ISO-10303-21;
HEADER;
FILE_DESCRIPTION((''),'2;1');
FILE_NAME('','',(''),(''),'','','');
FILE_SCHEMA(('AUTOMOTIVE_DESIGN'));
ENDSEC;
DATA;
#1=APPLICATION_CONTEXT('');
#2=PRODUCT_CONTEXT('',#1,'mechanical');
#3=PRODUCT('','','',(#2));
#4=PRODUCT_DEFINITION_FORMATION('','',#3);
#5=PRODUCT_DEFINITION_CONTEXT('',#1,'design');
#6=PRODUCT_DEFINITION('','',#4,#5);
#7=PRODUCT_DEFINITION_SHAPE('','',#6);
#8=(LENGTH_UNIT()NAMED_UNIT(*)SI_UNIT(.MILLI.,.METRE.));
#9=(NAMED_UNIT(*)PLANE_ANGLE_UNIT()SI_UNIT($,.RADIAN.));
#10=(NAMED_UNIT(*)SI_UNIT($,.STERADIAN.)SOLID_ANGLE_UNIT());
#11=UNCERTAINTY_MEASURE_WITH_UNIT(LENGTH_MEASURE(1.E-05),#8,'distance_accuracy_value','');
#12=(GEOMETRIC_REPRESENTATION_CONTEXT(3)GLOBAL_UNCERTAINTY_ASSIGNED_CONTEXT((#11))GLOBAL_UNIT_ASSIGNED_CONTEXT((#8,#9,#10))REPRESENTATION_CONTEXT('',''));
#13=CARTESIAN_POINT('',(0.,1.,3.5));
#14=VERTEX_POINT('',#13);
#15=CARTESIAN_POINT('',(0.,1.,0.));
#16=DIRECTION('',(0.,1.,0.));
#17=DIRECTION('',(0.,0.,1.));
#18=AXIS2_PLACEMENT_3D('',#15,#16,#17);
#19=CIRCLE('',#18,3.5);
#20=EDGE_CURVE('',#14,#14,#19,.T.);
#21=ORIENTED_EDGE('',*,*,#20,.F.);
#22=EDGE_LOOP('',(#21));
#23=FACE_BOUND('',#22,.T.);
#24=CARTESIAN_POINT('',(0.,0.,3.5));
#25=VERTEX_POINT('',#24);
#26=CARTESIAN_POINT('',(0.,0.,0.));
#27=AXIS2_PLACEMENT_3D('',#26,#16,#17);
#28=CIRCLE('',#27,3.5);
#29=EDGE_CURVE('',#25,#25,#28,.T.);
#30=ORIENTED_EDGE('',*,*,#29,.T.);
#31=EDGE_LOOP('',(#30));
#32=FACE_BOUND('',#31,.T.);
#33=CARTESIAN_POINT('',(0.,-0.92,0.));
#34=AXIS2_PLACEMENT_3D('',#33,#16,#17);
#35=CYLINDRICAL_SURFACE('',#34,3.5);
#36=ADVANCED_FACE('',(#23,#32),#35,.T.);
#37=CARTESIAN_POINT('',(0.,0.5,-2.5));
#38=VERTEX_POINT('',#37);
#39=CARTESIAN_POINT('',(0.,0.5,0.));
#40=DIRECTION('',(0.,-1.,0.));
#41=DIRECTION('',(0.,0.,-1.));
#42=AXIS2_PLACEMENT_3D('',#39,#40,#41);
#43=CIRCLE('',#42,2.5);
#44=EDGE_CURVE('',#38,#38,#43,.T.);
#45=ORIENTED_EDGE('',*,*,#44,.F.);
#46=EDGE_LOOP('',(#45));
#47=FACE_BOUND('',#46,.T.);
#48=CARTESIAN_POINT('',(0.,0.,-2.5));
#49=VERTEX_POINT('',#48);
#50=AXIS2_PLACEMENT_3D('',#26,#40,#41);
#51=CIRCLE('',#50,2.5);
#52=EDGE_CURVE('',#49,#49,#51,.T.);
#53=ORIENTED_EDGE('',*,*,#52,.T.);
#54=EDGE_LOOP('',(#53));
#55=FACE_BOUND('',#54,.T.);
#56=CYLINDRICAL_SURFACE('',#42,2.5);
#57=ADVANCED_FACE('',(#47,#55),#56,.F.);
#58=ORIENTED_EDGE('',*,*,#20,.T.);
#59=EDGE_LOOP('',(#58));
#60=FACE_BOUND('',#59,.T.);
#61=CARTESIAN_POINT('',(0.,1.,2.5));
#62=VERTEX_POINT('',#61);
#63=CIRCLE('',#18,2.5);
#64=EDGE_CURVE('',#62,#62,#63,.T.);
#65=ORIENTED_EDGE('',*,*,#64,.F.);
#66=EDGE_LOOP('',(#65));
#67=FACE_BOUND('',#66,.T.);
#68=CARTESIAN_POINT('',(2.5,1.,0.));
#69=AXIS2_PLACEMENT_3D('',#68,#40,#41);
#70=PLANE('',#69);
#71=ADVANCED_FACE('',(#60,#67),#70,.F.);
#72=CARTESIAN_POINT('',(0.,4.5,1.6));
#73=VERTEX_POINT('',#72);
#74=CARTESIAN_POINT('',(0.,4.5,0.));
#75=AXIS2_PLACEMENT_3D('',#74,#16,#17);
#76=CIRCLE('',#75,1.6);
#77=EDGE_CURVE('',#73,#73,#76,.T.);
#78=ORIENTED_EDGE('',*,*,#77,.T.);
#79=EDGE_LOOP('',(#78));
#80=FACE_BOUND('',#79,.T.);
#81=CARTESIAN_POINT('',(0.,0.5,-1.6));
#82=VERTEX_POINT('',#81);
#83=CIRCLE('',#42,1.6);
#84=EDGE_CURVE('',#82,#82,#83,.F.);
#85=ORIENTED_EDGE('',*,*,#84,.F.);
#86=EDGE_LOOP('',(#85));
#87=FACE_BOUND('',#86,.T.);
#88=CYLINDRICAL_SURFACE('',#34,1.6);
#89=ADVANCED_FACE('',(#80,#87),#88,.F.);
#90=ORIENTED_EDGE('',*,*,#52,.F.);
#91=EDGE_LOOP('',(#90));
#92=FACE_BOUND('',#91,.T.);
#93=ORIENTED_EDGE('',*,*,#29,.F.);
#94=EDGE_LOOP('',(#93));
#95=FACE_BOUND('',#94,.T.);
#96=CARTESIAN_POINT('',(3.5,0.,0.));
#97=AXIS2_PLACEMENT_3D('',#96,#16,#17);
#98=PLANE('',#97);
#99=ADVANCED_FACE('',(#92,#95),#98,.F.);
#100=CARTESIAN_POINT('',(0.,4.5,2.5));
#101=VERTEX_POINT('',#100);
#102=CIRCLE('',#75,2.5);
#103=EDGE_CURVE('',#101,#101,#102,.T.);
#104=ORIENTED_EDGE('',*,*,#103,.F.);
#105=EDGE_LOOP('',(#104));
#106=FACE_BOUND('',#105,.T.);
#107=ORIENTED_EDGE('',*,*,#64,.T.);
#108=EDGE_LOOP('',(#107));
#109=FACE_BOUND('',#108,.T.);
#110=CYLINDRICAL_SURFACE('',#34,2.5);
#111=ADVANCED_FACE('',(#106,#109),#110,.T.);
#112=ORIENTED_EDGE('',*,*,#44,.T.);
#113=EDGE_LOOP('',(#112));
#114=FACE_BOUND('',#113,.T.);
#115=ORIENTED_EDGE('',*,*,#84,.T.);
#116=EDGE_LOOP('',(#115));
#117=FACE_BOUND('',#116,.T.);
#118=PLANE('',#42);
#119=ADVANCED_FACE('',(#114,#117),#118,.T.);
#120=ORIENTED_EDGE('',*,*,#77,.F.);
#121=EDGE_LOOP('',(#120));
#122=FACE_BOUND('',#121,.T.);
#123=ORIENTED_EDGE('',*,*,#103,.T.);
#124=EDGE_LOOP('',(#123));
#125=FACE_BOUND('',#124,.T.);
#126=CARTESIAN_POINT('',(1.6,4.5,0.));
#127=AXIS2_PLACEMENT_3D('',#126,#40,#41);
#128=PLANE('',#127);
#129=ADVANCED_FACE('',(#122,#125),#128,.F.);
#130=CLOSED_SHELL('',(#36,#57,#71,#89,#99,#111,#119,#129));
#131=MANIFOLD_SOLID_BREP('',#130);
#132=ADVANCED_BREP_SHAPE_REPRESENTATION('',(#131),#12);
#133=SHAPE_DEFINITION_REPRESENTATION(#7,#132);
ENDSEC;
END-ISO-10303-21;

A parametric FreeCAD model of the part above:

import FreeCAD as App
import Part
import Sketcher
from FreeCAD import Vector
Q = App.Units.Quantity

doc = App.newDocument("Part")
body = doc.addObject("PartDesign::Body", "Body")

sketch1 = body.newObject("Sketcher::SketchObject", "Sketch")
sketch1.AttachmentSupport = (doc.getObject("XY_Plane"), [""])
sketch1.MapMode = "FlatFace"
sketch1.addGeometry(Part.LineSegment(Vector(1.6, 4.5, 0), Vector(1.6, 0, 0)), False)
sketch1.addGeometry(Part.LineSegment(Vector(1.6, 0, 0), Vector(3.5, 0, 0)), False)
sketch1.addGeometry(Part.LineSegment(Vector(3.5, 0, 0), Vector(3.5, 1, 0)), False)
sketch1.addGeometry(Part.LineSegment(Vector(3.5, 1, 0), Vector(2.5, 1, 0)), False)
sketch1.addGeometry(Part.LineSegment(Vector(2.5, 1, 0), Vector(2.5, 4.5, 0)), False)
sketch1.addGeometry(Part.LineSegment(Vector(2.5, 4.5, 0), Vector(1.6, 4.5, 0)), False)
sketch1.addConstraint(Sketcher.Constraint("Coincident", 0, 2, 1, 1))
sketch1.addConstraint(Sketcher.Constraint("Coincident", 1, 2, 2, 1))
sketch1.addConstraint(Sketcher.Constraint("Coincident", 2, 2, 3, 1))
sketch1.addConstraint(Sketcher.Constraint("Coincident", 3, 2, 4, 1))
sketch1.addConstraint(Sketcher.Constraint("Coincident", 4, 2, 5, 1))
sketch1.addConstraint(Sketcher.Constraint("Coincident", 5, 2, 0, 1))
sketch1.addConstraint(Sketcher.Constraint("Vertical", 0))
sketch1.addConstraint(Sketcher.Constraint("Horizontal", 1))
sketch1.addConstraint(Sketcher.Constraint("Vertical", 2))
sketch1.addConstraint(Sketcher.Constraint("Horizontal", 3))
sketch1.addConstraint(Sketcher.Constraint("Vertical", 4))
sketch1.addConstraint(Sketcher.Constraint("Horizontal", 5))
sketch1.addConstraint(Sketcher.Constraint("PointOnObject", 0, 2, -1))
sketch1.addConstraint(Sketcher.Constraint("Equal", 3, 2))
sketch1.addConstraint(Sketcher.Constraint("DistanceX", 3, 2, 3, 1, Q("1 mm")))
sketch1.addConstraint(Sketcher.Constraint("DistanceX", 1, 1, 1, 2, Q("1.9 mm")))
sketch1.addConstraint(Sketcher.Constraint("DistanceY", 0, 2, 0, 1, Q("4.5 mm")))
sketch1.addConstraint(Sketcher.Constraint("DistanceX", -1, 1, 0, 2, Q("1.6 mm")))
revolution = body.newObject("PartDesign::Revolution", "Revolution")
revolution.Profile = sketch1
revolution.ReferenceAxis = (sketch1, ["V_Axis"])
revolution.Angle = 360

sketch2 = body.newObject("Sketcher::SketchObject", "Sketch001")
sketch2.AttachmentSupport = (doc.getObject("XZ_Plane"), [""])
sketch2.MapMode = "FlatFace"
sketch2.addGeometry(Part.Circle(Vector(0, 0, 0), Vector(0, 0, 1), 2.5), False)
sketch2.addConstraint(Sketcher.Constraint("Coincident", 0, 3, -1, 1))
sketch2.addConstraint(Sketcher.Constraint("Diameter", 0, Q("5 mm")))
pocket1 = body.newObject("PartDesign::Pocket", "Pocket")
pocket1.Profile = sketch2
pocket1.Length = 0.5

doc.recompute()
